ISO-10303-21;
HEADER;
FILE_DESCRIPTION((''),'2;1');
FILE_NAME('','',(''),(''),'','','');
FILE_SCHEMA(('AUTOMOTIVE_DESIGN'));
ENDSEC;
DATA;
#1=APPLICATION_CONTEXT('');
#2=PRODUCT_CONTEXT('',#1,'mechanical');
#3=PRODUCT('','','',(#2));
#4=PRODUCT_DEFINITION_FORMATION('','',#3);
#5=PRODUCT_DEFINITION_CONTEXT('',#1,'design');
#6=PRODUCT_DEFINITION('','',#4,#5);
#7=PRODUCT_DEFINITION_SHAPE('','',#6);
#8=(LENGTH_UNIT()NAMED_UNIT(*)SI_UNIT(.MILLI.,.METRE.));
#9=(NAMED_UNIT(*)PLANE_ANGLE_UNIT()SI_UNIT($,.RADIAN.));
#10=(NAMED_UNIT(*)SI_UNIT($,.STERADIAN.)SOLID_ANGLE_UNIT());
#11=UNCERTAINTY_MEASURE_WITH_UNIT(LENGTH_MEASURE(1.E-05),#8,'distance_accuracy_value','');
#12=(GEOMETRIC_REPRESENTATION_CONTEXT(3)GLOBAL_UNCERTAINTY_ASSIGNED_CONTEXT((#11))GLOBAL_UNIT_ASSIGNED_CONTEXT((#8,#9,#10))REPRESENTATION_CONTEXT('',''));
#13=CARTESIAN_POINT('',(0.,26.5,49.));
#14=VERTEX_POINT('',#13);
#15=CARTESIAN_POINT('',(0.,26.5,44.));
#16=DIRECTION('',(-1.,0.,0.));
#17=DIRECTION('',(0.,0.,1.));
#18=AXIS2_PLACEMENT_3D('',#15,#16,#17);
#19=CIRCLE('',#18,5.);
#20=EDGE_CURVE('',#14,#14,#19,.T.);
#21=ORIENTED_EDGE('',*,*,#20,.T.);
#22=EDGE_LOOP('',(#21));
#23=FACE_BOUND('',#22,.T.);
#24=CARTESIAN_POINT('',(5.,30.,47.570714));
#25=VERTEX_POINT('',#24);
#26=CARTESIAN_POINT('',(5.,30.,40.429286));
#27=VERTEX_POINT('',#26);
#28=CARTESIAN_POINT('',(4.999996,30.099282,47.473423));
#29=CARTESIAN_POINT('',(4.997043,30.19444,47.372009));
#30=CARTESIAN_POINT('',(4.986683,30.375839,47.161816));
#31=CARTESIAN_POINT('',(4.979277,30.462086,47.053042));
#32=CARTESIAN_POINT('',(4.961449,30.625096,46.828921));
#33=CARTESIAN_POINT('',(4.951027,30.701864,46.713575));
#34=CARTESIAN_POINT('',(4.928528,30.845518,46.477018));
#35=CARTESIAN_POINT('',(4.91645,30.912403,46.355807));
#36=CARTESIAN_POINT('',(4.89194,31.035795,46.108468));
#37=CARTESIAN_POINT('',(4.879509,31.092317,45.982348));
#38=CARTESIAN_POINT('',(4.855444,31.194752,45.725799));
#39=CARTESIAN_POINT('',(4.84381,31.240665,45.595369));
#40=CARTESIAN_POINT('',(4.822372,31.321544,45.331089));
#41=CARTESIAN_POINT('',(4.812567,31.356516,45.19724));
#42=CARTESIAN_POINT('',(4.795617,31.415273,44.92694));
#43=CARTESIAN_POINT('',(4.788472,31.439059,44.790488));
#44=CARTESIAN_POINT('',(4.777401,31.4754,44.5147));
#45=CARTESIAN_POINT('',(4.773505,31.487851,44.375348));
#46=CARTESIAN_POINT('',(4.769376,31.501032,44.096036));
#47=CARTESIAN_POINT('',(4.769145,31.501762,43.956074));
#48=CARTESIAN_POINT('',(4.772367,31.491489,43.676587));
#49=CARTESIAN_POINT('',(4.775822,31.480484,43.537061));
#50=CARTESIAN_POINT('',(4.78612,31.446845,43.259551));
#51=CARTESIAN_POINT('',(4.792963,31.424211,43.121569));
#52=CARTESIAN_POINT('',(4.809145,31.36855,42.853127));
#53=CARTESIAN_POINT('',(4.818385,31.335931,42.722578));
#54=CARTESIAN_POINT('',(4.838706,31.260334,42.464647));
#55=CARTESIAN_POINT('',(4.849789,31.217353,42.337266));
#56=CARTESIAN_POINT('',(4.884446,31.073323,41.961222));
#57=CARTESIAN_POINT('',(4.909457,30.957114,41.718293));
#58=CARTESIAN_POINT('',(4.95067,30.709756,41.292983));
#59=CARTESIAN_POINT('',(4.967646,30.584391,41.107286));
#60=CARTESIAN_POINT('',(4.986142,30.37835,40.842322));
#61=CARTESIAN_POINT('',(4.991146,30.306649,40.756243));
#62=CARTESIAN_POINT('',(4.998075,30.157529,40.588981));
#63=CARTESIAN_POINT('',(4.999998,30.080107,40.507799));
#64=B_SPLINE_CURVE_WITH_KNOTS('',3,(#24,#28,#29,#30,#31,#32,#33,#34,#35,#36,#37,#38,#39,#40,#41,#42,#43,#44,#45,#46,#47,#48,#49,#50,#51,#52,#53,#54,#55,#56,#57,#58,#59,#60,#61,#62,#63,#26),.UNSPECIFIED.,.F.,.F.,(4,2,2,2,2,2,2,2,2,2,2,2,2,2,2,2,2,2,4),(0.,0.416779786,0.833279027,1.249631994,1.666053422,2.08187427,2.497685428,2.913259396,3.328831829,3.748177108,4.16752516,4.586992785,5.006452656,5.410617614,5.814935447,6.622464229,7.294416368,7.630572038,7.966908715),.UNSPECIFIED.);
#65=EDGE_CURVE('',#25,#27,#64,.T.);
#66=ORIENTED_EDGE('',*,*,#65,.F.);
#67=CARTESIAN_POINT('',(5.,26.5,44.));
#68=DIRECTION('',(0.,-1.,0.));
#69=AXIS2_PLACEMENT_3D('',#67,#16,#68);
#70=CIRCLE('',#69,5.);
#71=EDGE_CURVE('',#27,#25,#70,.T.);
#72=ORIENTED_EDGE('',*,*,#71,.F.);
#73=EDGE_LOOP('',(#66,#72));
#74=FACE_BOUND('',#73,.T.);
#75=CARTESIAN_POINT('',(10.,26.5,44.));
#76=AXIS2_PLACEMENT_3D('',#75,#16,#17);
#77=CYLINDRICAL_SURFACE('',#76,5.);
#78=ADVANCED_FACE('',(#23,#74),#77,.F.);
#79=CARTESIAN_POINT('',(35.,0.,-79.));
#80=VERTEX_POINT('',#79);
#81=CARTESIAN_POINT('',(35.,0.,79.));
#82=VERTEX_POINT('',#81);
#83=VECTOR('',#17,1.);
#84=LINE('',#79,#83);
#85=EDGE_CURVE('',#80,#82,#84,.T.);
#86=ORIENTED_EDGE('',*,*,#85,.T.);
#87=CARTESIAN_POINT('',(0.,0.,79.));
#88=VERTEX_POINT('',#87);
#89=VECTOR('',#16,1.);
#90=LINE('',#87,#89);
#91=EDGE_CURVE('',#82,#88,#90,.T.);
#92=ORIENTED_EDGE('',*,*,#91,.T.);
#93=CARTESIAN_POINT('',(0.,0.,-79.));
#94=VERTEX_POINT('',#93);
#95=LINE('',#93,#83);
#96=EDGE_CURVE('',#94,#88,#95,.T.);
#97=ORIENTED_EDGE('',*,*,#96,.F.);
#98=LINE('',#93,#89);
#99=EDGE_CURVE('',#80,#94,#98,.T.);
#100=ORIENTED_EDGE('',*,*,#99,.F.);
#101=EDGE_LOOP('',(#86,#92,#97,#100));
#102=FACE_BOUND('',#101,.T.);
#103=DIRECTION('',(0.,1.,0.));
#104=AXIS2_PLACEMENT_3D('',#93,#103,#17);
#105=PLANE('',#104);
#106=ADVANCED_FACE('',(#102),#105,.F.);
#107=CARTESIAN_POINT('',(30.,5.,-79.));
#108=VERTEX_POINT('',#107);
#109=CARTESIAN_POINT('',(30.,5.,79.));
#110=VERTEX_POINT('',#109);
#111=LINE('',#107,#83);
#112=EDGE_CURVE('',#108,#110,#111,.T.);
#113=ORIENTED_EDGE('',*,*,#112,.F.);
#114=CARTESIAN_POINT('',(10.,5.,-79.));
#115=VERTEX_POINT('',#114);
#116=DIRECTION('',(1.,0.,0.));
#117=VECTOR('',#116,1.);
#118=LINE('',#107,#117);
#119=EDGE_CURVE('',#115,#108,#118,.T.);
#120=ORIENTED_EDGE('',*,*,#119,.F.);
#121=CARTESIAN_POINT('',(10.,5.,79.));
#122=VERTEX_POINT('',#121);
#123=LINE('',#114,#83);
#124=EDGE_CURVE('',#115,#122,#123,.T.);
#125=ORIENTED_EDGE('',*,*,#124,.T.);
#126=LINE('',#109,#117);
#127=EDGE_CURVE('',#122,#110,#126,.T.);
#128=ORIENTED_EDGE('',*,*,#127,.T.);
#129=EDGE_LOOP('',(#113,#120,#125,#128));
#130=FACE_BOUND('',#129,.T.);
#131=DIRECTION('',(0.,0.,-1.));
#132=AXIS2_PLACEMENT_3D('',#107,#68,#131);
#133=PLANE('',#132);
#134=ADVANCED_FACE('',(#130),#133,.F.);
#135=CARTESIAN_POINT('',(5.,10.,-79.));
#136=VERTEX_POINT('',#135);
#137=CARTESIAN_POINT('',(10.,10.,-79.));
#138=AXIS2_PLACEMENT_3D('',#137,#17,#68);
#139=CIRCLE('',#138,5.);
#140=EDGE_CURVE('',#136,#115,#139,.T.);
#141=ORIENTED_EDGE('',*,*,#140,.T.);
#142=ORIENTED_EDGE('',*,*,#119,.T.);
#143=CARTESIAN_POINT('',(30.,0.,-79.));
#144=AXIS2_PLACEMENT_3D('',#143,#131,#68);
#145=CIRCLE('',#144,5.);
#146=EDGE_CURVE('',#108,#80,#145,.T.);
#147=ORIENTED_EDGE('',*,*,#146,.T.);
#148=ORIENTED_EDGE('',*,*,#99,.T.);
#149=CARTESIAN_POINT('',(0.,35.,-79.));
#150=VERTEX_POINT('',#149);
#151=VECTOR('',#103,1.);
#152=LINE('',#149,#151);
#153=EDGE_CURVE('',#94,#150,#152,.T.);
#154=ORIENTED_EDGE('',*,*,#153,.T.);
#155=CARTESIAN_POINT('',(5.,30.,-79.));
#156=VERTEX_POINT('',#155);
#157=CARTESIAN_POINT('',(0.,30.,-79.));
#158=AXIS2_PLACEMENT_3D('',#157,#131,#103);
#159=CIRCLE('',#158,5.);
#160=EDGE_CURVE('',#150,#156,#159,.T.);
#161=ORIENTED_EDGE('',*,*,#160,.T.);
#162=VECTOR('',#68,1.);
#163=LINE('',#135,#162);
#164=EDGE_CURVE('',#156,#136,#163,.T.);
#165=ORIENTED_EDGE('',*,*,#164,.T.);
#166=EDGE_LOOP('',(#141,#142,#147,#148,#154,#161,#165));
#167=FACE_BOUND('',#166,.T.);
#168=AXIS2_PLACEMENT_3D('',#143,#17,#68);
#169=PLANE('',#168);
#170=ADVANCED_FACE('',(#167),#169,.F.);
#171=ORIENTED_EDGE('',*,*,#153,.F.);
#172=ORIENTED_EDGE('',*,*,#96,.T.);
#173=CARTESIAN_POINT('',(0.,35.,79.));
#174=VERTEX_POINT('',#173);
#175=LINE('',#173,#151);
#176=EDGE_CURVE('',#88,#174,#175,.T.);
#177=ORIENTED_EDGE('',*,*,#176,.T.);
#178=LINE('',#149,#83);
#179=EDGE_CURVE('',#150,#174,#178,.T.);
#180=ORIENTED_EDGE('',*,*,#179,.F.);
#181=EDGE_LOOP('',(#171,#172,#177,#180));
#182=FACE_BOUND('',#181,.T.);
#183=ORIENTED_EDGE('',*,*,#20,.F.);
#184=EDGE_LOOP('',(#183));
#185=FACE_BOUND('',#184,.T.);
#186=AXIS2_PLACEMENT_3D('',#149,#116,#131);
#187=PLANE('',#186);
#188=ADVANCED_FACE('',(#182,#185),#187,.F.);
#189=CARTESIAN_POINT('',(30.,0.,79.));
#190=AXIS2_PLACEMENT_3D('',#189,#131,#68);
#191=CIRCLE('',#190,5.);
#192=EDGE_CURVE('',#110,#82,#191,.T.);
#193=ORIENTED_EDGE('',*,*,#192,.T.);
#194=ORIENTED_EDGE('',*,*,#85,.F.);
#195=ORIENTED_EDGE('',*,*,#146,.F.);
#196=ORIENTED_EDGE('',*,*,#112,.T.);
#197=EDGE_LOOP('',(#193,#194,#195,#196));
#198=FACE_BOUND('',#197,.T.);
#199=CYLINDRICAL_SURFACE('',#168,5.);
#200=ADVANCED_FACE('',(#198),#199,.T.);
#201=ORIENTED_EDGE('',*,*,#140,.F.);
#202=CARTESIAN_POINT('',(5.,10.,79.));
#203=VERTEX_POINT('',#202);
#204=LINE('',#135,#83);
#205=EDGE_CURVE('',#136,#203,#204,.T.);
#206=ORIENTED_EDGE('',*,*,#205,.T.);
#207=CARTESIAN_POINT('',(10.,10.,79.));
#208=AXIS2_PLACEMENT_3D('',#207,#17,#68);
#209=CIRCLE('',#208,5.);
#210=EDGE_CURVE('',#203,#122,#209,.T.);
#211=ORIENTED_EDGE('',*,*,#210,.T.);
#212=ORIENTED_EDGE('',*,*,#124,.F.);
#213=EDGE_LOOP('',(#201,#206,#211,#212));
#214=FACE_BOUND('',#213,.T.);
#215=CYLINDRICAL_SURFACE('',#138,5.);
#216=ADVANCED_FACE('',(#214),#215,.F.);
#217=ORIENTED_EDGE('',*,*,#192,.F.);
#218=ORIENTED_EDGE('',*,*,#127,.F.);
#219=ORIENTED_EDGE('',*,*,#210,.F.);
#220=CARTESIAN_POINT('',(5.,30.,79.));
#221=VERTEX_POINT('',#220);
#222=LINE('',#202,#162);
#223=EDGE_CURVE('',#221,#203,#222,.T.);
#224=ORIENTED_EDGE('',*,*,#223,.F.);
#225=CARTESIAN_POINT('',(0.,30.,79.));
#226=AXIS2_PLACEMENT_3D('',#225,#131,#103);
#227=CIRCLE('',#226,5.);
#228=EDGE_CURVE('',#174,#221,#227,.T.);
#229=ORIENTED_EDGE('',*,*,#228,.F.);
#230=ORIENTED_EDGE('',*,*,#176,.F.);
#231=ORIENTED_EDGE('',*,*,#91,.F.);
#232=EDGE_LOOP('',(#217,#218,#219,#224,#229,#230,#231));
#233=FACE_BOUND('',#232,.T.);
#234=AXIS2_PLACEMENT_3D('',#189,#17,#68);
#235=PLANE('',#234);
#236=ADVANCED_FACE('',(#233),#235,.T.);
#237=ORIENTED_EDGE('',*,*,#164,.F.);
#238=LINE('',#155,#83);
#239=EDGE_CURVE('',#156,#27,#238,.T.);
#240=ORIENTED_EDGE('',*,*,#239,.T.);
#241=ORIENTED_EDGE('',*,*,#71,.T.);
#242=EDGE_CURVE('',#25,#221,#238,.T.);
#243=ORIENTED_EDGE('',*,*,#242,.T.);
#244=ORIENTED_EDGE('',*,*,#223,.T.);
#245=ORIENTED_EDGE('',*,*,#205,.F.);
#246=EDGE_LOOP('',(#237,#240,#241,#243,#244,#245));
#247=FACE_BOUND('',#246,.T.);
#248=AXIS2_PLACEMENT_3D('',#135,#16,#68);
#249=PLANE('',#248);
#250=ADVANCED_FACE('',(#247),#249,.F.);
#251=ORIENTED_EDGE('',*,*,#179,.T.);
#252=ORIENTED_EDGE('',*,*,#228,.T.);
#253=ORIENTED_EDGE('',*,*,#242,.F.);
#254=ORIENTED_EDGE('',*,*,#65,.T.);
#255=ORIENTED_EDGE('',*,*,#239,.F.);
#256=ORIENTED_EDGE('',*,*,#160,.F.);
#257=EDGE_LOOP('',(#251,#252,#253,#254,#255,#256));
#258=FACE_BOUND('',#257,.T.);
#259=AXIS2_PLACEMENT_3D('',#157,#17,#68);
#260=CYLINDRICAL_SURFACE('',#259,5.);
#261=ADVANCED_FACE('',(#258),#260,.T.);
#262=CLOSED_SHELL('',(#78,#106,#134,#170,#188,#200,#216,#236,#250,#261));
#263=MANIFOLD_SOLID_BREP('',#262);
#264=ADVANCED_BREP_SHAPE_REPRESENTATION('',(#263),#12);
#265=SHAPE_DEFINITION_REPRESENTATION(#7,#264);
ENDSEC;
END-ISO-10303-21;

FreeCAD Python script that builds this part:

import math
import FreeCAD as App
import Part
import Sketcher
Q = App.Units.Quantity

doc = App.newDocument("Part")
params = doc.addObject("Spreadsheet::Sheet", "Params")
for row, (alias, value) in enumerate([
    ("sketch1_radius", "5 mm"),
    ("sketch1_width", "35 mm"),
    ("pad1_length", "158 mm"),
    ("sketch2_diameter", "10 mm"),
    ("pocket1_length", "10 mm"),
], start=1):
    params.set(f"A{row}", alias)
    params.set(f"B{row}", "=" + value)
    params.setAlias(f"B{row}", alias)

body = doc.addObject("PartDesign::Body", "Body")

# Sketch on XY plane
sketch1 = body.newObject("Sketcher::SketchObject", "Sketch")
sketch1.AttachmentSupport = (doc.getObject("XY_Plane"), [""])
sketch1.MapMode = "FlatFace"
sketch1.AttachmentOffset = App.Placement(App.Vector(0, 0, 79), App.Rotation())
sketch1.addGeometry([
    Part.LineSegment(App.Vector(35, 0, 0), App.Vector(0, 0, 0)),  # 0
    Part.LineSegment(App.Vector(0, 0, 0), App.Vector(0, 35, 0)),  # 1
    Part.ArcOfCircle(Part.Circle(App.Vector(0, 30, 0), App.Vector(0, 0, 1), 5), math.radians(0), math.radians(90)),  # 2
    Part.LineSegment(App.Vector(5, 30, 0), App.Vector(5, 10, 0)),  # 3
    Part.ArcOfCircle(Part.Circle(App.Vector(10, 10, 0), App.Vector(0, 0, 1), 5), math.radians(180), math.radians(270)),  # 4
    Part.LineSegment(App.Vector(10, 5, 0), App.Vector(30, 5, 0)),  # 5
    Part.ArcOfCircle(Part.Circle(App.Vector(30, 0, 0), App.Vector(0, 0, 1), 5), math.radians(0), math.radians(90)),  # 6
], False)
sketch1.addConstraint([
    Sketcher.Constraint("Coincident", 0, 2, 1, 1),
    Sketcher.Constraint("Coincident", 1, 2, 2, 2),
    Sketcher.Constraint("Tangent", 2, 1, 3, 1),
    Sketcher.Constraint("Tangent", 3, 2, 4, 1),
    Sketcher.Constraint("Tangent", 4, 2, 5, 1),
    Sketcher.Constraint("Tangent", 5, 2, 6, 2),
    Sketcher.Constraint("Coincident", 6, 1, 0, 1),
    Sketcher.Constraint("Horizontal", 0),
    Sketcher.Constraint("Vertical", 1),
    Sketcher.Constraint("Vertical", 3),
    Sketcher.Constraint("Horizontal", 5),
    Sketcher.Constraint("Coincident", 0, 2, -1, 1),
    Sketcher.Constraint("Equal", 2, 4),
    Sketcher.Constraint("Equal", 4, 6),
    Sketcher.Constraint("PointOnObject", 2, 3, -2),
    Sketcher.Constraint("PointOnObject", 6, 3, -1),
    Sketcher.Constraint("Equal", 0, 1),
    Sketcher.Constraint("Radius", 2, Q("5 mm")),
    Sketcher.Constraint("DistanceX", 0, 2, 0, 1, Q("35 mm")),
])
sketch1.setExpression("Constraints[17]", "Params.sketch1_radius")
sketch1.setExpression("Constraints[18]", "Params.sketch1_width")
pad1 = body.newObject("PartDesign::Pad", "Pad")
pad1.Profile = sketch1
pad1.setExpression("Length", "Params.pad1_length")
pad1.Reversed = True

# Sketch on YZ plane
sketch2 = body.newObject("Sketcher::SketchObject", "Sketch001")
sketch2.AttachmentSupport = (doc.getObject("YZ_Plane"), [""])
sketch2.MapMode = "FlatFace"
sketch2.addGeometry(Part.Circle(App.Vector(26, 44, 0), App.Vector(0, 0, 1), 5), False)
sketch2.addConstraint([
    Sketcher.Constraint("Diameter", 0, Q("10 mm")),
    Sketcher.Constraint("DistanceY", -1, 1, 0, 3, Q("44 mm")),
    Sketcher.Constraint("DistanceX", -1, 1, 0, 3, Q("26.5 mm")),
])
sketch2.setExpression("Constraints[0]", "Params.sketch2_diameter")
pocket1 = body.newObject("PartDesign::Pocket", "Pocket")
pocket1.Profile = sketch2
pocket1.setExpression("Length", "Params.pocket1_length")
pocket1.Reversed = True

doc.recompute()
